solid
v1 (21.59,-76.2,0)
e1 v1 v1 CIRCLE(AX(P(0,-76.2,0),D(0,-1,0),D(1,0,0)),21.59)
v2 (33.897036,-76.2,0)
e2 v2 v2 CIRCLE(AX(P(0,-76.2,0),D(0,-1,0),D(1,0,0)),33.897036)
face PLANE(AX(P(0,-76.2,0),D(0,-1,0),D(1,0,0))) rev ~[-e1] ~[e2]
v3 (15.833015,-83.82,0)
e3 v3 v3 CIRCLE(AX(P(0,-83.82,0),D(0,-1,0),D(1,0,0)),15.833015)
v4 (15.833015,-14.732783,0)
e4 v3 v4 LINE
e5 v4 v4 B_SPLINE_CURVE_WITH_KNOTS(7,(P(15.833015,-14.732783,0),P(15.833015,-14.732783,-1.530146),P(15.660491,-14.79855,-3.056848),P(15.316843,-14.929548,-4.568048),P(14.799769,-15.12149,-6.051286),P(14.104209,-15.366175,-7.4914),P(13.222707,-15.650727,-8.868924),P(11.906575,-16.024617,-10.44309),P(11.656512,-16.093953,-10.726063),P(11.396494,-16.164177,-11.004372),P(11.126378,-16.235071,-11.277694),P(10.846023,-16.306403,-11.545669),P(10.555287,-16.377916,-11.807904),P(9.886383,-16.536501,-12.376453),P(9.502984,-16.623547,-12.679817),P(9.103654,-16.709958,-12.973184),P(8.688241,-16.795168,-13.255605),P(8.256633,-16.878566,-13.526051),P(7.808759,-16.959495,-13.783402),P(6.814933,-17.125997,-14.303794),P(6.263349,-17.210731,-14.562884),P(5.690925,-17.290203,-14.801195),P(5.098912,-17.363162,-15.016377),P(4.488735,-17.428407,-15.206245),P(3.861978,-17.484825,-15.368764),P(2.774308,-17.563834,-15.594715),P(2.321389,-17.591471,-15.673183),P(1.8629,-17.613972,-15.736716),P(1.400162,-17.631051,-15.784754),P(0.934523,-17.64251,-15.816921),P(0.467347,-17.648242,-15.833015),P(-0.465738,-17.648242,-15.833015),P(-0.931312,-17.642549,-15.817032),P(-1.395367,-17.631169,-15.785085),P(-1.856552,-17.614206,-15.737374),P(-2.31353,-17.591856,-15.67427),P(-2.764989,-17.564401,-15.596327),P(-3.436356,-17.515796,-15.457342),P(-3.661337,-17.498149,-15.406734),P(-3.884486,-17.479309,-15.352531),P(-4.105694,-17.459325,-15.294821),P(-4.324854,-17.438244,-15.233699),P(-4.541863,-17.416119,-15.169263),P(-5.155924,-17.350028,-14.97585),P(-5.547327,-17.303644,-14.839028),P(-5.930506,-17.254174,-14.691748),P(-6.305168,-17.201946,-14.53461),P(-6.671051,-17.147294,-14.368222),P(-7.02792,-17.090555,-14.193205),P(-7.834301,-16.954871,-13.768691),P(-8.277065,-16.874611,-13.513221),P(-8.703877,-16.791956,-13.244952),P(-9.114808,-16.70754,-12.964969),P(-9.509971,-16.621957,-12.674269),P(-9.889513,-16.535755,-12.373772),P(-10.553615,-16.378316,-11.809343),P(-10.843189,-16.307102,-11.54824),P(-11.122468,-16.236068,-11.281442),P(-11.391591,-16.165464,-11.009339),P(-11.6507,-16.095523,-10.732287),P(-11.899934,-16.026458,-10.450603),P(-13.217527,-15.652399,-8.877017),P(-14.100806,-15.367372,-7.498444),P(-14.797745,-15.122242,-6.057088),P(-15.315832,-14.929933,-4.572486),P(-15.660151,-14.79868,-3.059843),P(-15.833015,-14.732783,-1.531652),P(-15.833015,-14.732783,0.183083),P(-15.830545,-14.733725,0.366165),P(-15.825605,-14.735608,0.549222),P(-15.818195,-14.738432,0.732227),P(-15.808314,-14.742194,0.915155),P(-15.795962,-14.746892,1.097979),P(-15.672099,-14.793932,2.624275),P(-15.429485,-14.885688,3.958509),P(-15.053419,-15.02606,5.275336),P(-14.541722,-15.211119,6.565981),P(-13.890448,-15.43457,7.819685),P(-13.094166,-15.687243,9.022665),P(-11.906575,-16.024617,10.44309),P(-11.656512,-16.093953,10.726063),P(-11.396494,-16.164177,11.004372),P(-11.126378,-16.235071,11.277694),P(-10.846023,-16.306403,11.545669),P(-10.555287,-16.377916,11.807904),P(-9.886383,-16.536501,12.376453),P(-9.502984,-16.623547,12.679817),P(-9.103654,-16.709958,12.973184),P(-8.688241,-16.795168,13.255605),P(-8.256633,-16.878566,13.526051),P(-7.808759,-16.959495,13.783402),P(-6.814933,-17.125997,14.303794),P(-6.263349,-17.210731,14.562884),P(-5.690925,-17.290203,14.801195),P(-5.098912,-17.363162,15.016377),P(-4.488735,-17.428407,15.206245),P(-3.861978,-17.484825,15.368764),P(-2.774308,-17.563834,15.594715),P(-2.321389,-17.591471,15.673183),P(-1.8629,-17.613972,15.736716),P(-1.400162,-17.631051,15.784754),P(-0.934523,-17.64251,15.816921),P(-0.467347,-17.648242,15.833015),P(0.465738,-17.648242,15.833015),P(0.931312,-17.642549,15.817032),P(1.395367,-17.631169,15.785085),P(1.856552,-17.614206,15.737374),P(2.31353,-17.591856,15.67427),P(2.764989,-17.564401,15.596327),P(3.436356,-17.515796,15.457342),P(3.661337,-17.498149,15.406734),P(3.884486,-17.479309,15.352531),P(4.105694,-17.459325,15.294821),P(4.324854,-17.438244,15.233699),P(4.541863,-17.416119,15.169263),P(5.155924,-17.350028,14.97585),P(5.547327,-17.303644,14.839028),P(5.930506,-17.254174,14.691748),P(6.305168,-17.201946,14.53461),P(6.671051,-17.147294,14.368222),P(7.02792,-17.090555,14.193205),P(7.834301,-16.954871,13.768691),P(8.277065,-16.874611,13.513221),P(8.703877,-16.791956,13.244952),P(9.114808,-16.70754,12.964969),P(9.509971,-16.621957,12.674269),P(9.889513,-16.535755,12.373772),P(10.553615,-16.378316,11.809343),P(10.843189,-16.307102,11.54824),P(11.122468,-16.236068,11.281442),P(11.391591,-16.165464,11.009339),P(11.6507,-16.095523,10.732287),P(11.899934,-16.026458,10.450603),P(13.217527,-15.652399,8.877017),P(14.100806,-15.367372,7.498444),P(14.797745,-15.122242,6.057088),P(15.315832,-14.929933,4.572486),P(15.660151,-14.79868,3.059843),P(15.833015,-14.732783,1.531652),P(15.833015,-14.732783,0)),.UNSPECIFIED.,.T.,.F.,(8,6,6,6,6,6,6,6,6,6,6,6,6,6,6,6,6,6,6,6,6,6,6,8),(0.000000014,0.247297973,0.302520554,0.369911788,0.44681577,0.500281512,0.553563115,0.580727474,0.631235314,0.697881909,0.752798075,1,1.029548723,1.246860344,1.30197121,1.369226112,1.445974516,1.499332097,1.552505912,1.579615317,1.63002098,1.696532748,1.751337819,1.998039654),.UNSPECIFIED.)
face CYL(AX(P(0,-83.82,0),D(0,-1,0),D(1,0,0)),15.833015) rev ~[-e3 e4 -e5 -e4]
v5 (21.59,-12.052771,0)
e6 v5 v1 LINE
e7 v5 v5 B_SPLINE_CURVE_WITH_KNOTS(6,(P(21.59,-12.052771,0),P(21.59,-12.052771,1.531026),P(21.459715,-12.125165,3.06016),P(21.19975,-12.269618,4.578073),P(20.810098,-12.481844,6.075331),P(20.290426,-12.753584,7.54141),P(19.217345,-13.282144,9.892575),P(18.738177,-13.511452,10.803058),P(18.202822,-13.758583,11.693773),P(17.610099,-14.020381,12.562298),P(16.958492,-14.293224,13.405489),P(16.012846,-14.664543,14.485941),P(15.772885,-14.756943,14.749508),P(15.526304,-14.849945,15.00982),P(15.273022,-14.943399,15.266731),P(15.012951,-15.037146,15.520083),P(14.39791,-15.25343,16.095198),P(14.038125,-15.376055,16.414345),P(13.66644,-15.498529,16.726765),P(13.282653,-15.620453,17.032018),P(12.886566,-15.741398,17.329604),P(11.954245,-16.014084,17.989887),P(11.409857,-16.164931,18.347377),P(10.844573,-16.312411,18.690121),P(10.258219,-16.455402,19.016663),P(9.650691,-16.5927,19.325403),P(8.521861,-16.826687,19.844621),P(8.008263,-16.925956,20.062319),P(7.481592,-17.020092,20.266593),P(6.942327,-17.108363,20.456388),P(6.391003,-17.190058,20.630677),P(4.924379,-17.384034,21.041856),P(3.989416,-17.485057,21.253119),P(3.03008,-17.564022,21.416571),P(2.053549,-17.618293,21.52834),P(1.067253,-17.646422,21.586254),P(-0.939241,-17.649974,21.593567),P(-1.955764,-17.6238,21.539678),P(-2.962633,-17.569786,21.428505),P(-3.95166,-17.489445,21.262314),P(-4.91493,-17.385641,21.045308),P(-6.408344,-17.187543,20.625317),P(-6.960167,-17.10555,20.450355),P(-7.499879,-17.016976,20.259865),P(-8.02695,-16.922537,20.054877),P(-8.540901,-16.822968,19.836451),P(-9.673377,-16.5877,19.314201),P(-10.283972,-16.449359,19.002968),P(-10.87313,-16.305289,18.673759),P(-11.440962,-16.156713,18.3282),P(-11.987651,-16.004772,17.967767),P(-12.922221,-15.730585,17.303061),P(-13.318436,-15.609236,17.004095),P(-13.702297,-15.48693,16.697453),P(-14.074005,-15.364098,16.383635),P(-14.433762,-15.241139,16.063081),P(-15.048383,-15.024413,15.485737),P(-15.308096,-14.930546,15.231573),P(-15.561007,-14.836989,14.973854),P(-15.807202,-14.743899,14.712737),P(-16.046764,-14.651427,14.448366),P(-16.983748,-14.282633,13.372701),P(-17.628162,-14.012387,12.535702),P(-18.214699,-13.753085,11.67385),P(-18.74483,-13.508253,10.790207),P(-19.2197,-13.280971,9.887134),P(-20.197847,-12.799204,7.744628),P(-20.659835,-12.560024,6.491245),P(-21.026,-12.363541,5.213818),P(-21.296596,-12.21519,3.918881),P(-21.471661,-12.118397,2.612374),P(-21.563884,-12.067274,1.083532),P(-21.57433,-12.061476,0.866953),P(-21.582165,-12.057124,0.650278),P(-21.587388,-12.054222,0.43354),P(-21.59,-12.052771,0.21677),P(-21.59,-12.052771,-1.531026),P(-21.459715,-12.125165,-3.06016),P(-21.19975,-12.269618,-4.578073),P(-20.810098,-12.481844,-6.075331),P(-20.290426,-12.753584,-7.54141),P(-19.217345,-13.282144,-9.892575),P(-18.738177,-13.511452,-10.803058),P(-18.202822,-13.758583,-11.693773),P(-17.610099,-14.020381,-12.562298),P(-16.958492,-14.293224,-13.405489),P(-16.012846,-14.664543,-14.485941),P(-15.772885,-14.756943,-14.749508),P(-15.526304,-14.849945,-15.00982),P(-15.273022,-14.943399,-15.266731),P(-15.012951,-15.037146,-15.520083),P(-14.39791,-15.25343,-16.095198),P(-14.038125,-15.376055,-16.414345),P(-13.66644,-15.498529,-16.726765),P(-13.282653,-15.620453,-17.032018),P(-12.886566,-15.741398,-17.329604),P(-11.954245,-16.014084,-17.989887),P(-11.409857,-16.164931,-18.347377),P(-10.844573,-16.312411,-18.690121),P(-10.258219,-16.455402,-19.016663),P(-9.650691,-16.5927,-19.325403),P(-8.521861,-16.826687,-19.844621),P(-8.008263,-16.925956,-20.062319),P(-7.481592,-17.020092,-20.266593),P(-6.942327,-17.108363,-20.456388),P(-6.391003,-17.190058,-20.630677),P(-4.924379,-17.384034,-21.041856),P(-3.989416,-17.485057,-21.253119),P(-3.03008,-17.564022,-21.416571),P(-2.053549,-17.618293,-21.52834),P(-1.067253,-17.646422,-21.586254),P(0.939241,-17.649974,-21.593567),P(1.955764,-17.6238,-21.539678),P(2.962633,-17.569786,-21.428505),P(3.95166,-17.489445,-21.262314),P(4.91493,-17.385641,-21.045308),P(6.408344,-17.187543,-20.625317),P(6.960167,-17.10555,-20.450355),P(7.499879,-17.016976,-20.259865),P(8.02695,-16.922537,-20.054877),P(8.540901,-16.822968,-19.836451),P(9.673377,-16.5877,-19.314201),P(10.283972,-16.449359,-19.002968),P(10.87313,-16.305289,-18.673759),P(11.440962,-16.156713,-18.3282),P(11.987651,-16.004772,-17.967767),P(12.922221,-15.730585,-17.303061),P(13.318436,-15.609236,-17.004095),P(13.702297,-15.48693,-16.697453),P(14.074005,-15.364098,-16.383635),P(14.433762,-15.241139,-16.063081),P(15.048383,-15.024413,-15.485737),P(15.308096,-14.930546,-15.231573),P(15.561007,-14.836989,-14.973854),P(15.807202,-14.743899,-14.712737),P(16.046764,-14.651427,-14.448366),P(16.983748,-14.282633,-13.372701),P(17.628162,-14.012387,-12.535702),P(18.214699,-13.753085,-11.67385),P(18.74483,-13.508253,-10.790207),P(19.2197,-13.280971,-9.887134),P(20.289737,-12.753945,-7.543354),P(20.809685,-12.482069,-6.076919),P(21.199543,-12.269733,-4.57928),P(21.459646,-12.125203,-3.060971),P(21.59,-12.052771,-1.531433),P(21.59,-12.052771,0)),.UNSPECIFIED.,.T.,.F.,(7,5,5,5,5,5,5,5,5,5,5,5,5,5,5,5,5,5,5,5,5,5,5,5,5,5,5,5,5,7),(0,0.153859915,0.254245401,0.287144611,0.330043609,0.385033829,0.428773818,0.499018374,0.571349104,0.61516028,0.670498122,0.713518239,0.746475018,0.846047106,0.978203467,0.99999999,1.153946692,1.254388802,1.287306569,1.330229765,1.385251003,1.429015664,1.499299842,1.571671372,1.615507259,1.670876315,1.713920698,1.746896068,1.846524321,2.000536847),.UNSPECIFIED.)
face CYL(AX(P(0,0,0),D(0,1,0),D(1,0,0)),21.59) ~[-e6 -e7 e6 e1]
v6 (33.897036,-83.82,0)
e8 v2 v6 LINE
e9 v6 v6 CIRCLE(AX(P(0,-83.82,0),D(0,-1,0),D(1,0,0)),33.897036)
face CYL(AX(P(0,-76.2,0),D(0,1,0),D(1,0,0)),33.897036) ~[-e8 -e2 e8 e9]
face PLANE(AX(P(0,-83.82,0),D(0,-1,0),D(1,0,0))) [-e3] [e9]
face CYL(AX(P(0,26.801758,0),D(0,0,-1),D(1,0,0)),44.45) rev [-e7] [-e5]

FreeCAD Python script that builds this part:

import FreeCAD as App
import Part
import Sketcher
from FreeCAD import Vector
Q = App.Units.Quantity

doc = App.newDocument("Part")
body = doc.addObject("PartDesign::Body", "Body")

# Sketch on XZ plane
sketch1 = body.newObject("Sketcher::SketchObject", "Sketch")
sketch1.AttachmentSupport = (doc.getObject("XZ_Plane"), [""])
sketch1.MapMode = "FlatFace"
sketch1.addGeometry(Part.Circle(Vector(0, 0, 0), Vector(0, 0, 1), 22), False)
sketch1.addConstraint(Sketcher.Constraint("Coincident", 0, 3, -1, 1))
sketch1.addConstraint(Sketcher.Constraint("Diameter", 0, Q("1.7 in")))
pad1 = body.newObject("PartDesign::Pad", "Pad")
pad1.Profile = sketch1
pad1.Length = Q("3 in")

# Sketch on XZ plane
sketch2 = body.newObject("Sketcher::SketchObject", "Sketch001")
sketch2.AttachmentSupport = (doc.getObject("XZ_Plane"), [""])
sketch2.MapMode = "FlatFace"
sketch2.AttachmentOffset = App.Placement(Vector(0, 0, 3 * 25.4), App.Rotation())
sketch2.addGeometry(Part.Circle(Vector(0, 0, 0), Vector(0, 0, 1), 34), False)
sketch2.addConstraint(Sketcher.Constraint("Coincident", 0, 3, -1, 1))
sketch2.addConstraint(Sketcher.Constraint("Diameter", 0, Q("67.794072 mm")))
pad2 = body.newObject("PartDesign::Pad", "Pad001")
pad2.Profile = sketch2
pad2.Length = Q("0.3 in")

# Sketch on XZ plane
sketch3 = body.newObject("Sketcher::SketchObject", "Sketch002")
sketch3.AttachmentSupport = (doc.getObject("XZ_Plane"), [""])
sketch3.MapMode = "FlatFace"
sketch3.AttachmentOffset = App.Placement(Vector(0, 0, 3.3 * 25.4), App.Rotation())
sketch3.addGeometry(Part.Circle(Vector(0, 0, 0), Vector(0, 0, 1), 16), False)
sketch3.addConstraint(Sketcher.Constraint("Coincident", 0, 3, -1, 1))
sketch3.addConstraint(Sketcher.Constraint("Diameter", 0, Q("31.66603 mm")))
pocket1 = body.newObject("PartDesign::Pocket", "Pocket")
pocket1.Profile = sketch3
pocket1.Type = "ThroughAll"

# Sketch on XY plane
sketch4 = body.newObject("Sketcher::SketchObject", "Sketch003")
sketch4.AttachmentSupport = (doc.getObject("XY_Plane"), [""])
sketch4.MapMode = "FlatFace"
sketch4.addGeometry(Part.Circle(Vector(0, 27, 0), Vector(0, 0, 1), 44), False)
sketch4.addConstraint(Sketcher.Constraint("PointOnObject", 0, 3, -2))
sketch4.addConstraint(Sketcher.Constraint("Diameter", 0, Q("3.5 in")))
sketch4.addConstraint(Sketcher.Constraint("DistanceY", -1, 1, 0, 3, Q("26.801758 mm")))
pocket2 = body.newObject("PartDesign::Pocket", "Pocket001")
pocket2.Profile = sketch4
pocket2.Type = "ThroughAll"
pocket2.Midplane = True

doc.recompute()
